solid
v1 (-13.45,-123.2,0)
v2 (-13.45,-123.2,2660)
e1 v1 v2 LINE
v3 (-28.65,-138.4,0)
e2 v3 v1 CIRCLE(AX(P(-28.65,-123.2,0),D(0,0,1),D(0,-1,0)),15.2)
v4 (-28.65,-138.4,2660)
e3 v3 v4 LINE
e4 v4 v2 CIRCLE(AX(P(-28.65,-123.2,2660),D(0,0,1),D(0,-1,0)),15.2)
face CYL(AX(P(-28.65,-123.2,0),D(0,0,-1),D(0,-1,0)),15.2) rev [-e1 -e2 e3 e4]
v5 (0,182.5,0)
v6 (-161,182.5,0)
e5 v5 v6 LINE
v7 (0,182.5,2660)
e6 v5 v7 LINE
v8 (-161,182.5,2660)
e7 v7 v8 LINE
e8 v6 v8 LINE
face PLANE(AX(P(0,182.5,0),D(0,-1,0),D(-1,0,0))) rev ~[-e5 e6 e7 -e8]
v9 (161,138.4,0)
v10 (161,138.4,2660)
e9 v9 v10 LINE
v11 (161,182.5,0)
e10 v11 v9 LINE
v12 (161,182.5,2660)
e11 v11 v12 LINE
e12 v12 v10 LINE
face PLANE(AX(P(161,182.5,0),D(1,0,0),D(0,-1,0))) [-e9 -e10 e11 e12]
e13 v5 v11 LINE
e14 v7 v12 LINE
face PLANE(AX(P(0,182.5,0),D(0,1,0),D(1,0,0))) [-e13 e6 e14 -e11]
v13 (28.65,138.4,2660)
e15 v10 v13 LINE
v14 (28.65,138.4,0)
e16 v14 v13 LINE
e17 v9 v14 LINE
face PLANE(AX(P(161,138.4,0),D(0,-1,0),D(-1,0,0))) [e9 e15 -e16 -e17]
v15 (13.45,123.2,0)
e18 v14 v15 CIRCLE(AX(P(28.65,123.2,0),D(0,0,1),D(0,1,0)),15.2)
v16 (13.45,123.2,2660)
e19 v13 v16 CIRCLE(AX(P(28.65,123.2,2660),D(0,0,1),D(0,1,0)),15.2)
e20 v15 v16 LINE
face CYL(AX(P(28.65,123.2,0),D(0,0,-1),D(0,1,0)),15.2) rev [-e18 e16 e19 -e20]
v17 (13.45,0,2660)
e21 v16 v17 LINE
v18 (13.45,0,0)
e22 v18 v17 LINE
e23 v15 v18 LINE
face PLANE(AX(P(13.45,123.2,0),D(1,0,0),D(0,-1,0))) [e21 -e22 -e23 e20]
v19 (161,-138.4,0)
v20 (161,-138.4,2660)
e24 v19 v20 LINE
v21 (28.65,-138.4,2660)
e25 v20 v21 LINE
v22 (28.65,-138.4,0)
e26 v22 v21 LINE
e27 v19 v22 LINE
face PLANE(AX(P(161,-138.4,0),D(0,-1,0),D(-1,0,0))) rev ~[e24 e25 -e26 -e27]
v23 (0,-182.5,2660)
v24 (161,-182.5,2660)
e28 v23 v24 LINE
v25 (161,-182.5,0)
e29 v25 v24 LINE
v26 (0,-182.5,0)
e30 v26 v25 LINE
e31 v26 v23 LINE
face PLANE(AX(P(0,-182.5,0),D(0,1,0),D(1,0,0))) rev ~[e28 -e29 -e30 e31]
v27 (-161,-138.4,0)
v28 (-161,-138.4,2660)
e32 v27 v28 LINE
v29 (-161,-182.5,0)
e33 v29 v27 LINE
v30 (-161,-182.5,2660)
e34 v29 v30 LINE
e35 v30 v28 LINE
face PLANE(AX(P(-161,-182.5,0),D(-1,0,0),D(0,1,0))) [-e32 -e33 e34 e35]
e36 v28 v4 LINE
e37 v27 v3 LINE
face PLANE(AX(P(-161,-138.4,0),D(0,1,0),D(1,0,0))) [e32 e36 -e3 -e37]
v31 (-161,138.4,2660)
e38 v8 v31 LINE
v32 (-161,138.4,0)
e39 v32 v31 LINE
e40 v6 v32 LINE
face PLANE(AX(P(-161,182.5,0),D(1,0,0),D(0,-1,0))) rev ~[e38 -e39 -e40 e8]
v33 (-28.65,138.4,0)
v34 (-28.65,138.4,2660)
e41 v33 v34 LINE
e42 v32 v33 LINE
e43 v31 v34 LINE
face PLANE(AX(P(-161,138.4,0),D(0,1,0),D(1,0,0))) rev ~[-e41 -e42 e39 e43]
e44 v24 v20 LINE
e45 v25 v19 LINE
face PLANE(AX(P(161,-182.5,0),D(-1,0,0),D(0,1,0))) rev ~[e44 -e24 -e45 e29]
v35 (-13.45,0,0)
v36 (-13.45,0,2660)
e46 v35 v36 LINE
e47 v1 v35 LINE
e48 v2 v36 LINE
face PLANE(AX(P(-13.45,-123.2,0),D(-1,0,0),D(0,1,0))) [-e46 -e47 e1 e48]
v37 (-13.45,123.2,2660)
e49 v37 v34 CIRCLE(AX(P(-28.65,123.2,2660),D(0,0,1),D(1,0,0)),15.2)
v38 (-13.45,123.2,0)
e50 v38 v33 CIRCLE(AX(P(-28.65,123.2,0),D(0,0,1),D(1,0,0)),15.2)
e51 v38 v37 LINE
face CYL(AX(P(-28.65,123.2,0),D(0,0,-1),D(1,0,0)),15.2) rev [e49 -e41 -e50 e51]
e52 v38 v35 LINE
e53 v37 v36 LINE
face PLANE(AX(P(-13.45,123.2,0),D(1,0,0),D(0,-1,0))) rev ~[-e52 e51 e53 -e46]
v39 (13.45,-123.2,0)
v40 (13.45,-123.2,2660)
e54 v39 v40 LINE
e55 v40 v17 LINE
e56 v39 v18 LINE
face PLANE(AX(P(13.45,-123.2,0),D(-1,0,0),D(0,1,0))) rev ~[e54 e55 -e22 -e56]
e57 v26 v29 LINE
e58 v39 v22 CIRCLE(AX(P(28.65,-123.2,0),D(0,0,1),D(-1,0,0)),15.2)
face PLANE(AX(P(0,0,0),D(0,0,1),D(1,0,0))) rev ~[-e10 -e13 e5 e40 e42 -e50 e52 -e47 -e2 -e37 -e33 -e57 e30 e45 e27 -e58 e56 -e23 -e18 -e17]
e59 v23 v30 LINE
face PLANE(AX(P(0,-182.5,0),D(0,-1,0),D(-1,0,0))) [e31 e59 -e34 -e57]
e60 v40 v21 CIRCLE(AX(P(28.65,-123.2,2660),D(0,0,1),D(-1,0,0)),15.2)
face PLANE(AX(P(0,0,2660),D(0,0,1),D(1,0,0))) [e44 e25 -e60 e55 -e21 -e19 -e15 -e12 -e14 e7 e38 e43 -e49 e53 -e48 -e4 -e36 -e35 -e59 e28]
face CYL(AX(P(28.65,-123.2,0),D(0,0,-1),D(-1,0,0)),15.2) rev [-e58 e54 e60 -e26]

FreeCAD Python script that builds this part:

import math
import FreeCAD as App
import Part
import Sketcher
Q = App.Units.Quantity

doc = App.newDocument("Part")
body = doc.addObject("PartDesign::Body", "Body")

sketch1 = body.newObject("Sketcher::SketchObject", "Sketch")
sketch1.AttachmentSupport = (doc.getObject("XY_Plane"), [""])
sketch1.MapMode = "FlatFace"
sketch1.addGeometry([
    Part.LineSegment(App.Vector(-161, -138.4, 0), App.Vector(-161, -182.5, 0)),
    Part.LineSegment(App.Vector(-161, -182.5, 0), App.Vector(161, -182.5, 0)),
    Part.LineSegment(App.Vector(161, -182.5, 0), App.Vector(161, -138.4, 0)),
    Part.LineSegment(App.Vector(161, -138.4, 0), App.Vector(28.65, -138.4, 0)),
    Part.ArcOfCircle(Part.Circle(App.Vector(28.65, -123.2, 0), App.Vector(0, 0, 1), 15.2), math.radians(180), math.radians(270)),
    Part.LineSegment(App.Vector(13.45, -123.2, 0), App.Vector(13.45, 123.2, 0)),
    Part.ArcOfCircle(Part.Circle(App.Vector(28.65, 123.2, 0), App.Vector(0, 0, 1), 15.2), math.radians(90), math.radians(180)),
    Part.LineSegment(App.Vector(28.65, 138.4, 0), App.Vector(161, 138.4, 0)),
    Part.LineSegment(App.Vector(161, 138.4, 0), App.Vector(161, 182.5, 0)),
    Part.LineSegment(App.Vector(161, 182.5, 0), App.Vector(-161, 182.5, 0)),
    Part.LineSegment(App.Vector(-161, 182.5, 0), App.Vector(-161, 138.4, 0)),
    Part.LineSegment(App.Vector(-161, 138.4, 0), App.Vector(-28.65, 138.4, 0)),
    Part.ArcOfCircle(Part.Circle(App.Vector(-28.65, 123.2, 0), App.Vector(0, 0, 1), 15.2), math.radians(0), math.radians(90)),
    Part.LineSegment(App.Vector(-13.45, 123.2, 0), App.Vector(-13.45, -123.2, 0)),
    Part.ArcOfCircle(Part.Circle(App.Vector(-28.65, -123.2, 0), App.Vector(0, 0, 1), 15.2), math.radians(-90), math.radians(0)),
    Part.LineSegment(App.Vector(-28.65, -138.4, 0), App.Vector(-161, -138.4, 0)),
], False)
sketch1.addConstraint([
    Sketcher.Constraint("Coincident", 0, 2, 1, 1),
    Sketcher.Constraint("Coincident", 1, 2, 2, 1),
    Sketcher.Constraint("Coincident", 2, 2, 3, 1),
    Sketcher.Constraint("Tangent", 3, 2, 4, 2),
    Sketcher.Constraint("Tangent", 4, 1, 5, 1),
    Sketcher.Constraint("Tangent", 5, 2, 6, 2),
    Sketcher.Constraint("Tangent", 6, 1, 7, 1),
    Sketcher.Constraint("Coincident", 7, 2, 8, 1),
    Sketcher.Constraint("Coincident", 8, 2, 9, 1),
    Sketcher.Constraint("Coincident", 9, 2, 10, 1),
    Sketcher.Constraint("Coincident", 10, 2, 11, 1),
    Sketcher.Constraint("Tangent", 11, 2, 12, 2),
    Sketcher.Constraint("Tangent", 12, 1, 13, 1),
    Sketcher.Constraint("Tangent", 13, 2, 14, 2),
    Sketcher.Constraint("Tangent", 14, 1, 15, 1),
    Sketcher.Constraint("Coincident", 15, 2, 0, 1),
    Sketcher.Constraint("Vertical", 0),
    Sketcher.Constraint("Horizontal", 1),
    Sketcher.Constraint("Vertical", 2),
    Sketcher.Constraint("Horizontal", 3),
    Sketcher.Constraint("Vertical", 5),
    Sketcher.Constraint("Horizontal", 7),
    Sketcher.Constraint("Vertical", 8),
    Sketcher.Constraint("Horizontal", 9),
    Sketcher.Constraint("Vertical", 10),
    Sketcher.Constraint("Horizontal", 11),
    Sketcher.Constraint("Vertical", 13),
    Sketcher.Constraint("Horizontal", 15),
    Sketcher.Constraint("Equal", 4, 6),
    Sketcher.Constraint("Equal", 6, 12),
    Sketcher.Constraint("Equal", 12, 14),
    Sketcher.Constraint("Symmetric", 4, 3, 12, 3, -1, 1),
    Sketcher.Constraint("Symmetric", 0, 2, 8, 2, -1, 1),
    Sketcher.Constraint("Symmetric", 7, 2, 10, 2, -2),
    Sketcher.Constraint("Symmetric", 2, 2, 15, 2, -2),
    Sketcher.Constraint("Radius", 4, Q("15.2 mm")),
    Sketcher.Constraint("DistanceY", 0, 2, 0, 1, Q("44.1 mm")),
    Sketcher.Constraint("DistanceX", 0, 2, -1, 1, Q("161 mm")),
    Sketcher.Constraint("DistanceY", 0, 2, -1, 1, Q("182.5 mm")),
    Sketcher.Constraint("DistanceX", -1, 1, 4, 1, Q("13.45 mm")),
])
pad1 = body.newObject("PartDesign::Pad", "Pad")
pad1.Profile = sketch1
pad1.Length = 2660

doc.recompute()
